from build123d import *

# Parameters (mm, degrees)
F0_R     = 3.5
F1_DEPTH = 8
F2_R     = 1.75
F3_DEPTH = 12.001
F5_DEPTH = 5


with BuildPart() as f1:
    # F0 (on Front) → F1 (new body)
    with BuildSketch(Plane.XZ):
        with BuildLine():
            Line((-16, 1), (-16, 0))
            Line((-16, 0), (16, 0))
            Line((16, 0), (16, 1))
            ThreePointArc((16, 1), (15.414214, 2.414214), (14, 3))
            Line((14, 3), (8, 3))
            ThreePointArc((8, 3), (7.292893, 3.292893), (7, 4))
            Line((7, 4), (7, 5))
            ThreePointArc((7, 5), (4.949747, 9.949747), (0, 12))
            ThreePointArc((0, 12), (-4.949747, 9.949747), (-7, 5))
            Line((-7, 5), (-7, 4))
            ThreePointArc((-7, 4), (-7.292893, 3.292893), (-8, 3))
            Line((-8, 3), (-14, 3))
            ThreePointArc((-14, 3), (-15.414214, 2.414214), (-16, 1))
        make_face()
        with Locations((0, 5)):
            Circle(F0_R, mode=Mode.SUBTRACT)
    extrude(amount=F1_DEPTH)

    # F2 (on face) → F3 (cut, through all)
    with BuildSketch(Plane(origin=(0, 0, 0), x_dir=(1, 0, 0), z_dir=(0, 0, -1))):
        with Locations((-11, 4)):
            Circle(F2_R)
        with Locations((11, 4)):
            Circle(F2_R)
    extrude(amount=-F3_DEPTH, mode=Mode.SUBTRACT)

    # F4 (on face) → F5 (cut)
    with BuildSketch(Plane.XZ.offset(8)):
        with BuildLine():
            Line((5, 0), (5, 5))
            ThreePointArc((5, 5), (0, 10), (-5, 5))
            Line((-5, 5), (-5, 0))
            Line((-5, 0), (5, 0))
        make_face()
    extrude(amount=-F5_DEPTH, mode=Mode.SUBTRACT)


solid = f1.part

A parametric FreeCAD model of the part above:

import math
import FreeCAD as App
import Part
import Sketcher

V = App.Vector

doc = App.newDocument("Part")
body = doc.addObject("PartDesign::Body", "Body")

sketch1 = doc.addObject("Sketcher::SketchObject", "Sketch")
body.addObject(sketch1)
sketch1.AttachmentSupport = (doc.XZ_Plane, [""])
sketch1.MapMode = "FlatFace"
sketch1.addGeometry([
    Part.LineSegment(V(-16, 1, 0), V(-16, 0, 0)),
    Part.LineSegment(V(-16, 0, 0), V(16, 0, 0)),
    Part.LineSegment(V(16, 0, 0), V(16, 1, 0)),
    Part.ArcOfCircle(Part.Circle(V(14.000001, 1.000001, 0), V(0, 0, 1), 1.999999), math.radians(-0.000043), math.radians(90.000043)),
    Part.LineSegment(V(14, 3, 0), V(8, 3, 0)),
    Part.ArcOfCircle(Part.Circle(V(7.999999, 3.999999, 0), V(0, 0, 1), 0.999999), math.radians(179.999957), math.radians(270.000043)),
    Part.LineSegment(V(7, 4, 0), V(7, 5, 0)),
    Part.ArcOfCircle(Part.Circle(V(-0.000002, 4.999998, 0), V(0, 0, 1), 7.000002), math.radians(0.000013), math.radians(89.999987)),
    Part.ArcOfCircle(Part.Circle(V(0.000002, 4.999998, 0), V(0, 0, 1), 7.000002), math.radians(90.000013), math.radians(179.999987)),
    Part.LineSegment(V(-7, 5, 0), V(-7, 4, 0)),
    Part.ArcOfCircle(Part.Circle(V(-7.999999, 3.999999, 0), V(0, 0, 1), 0.999999), math.radians(-90.000043), math.radians(0.000043)),
    Part.LineSegment(V(-8, 3, 0), V(-14, 3, 0)),
    Part.ArcOfCircle(Part.Circle(V(-14.000001, 1.000001, 0), V(0, 0, 1), 1.999999), math.radians(89.999957), math.radians(180.000043)),
    Part.Circle(V(0, 5, 0), V(0, 0, 1), 3.5),
], False)
sketch1.addConstraint([
    Sketcher.Constraint("Coincident", 0, 2, 1, 1),
    Sketcher.Constraint("Coincident", 1, 2, 2, 1),
    Sketcher.Constraint("Tangent", 2, 2, 3, 1),
    Sketcher.Constraint("Tangent", 3, 2, 4, 1),
    Sketcher.Constraint("Tangent", 4, 2, 5, 2),
    Sketcher.Constraint("Tangent", 5, 1, 6, 1),
    Sketcher.Constraint("Tangent", 6, 2, 7, 1),
    Sketcher.Constraint("Tangent", 7, 2, 8, 1),
    Sketcher.Constraint("Tangent", 8, 2, 9, 1),
    Sketcher.Constraint("Tangent", 9, 2, 10, 2),
    Sketcher.Constraint("Tangent", 10, 1, 11, 1),
    Sketcher.Constraint("Tangent", 11, 2, 12, 1),
    Sketcher.Constraint("Tangent", 12, 2, 0, 1),
    Sketcher.Constraint("Vertical", 0),
    Sketcher.Constraint("Horizontal", 1),
    Sketcher.Constraint("Vertical", 2),
    Sketcher.Constraint("Horizontal", 4),
    Sketcher.Constraint("Vertical", 6),
    Sketcher.Constraint("Vertical", 9),
    Sketcher.Constraint("Horizontal", 11),
    Sketcher.Constraint("Coincident", 13, 3, 7, 3),
    Sketcher.Constraint("Equal", 7, 8),
    Sketcher.Constraint("Equal", 5, 10),
    Sketcher.Constraint("Equal", 3, 12),
    Sketcher.Constraint("Symmetric", 0, 2, 1, 2, -1, 1),
    Sketcher.Constraint("Symmetric", 5, 3, 10, 3, -2),
    Sketcher.Constraint("PointOnObject", 7, 2, -2),
    Sketcher.Constraint("Equal", 2, 6),
    Sketcher.Constraint("Diameter", 13, 7.0),
    Sketcher.Constraint("Radius", 3, 1.999999),
    Sketcher.Constraint("Radius", 5, 0.999999),
    Sketcher.Constraint("Radius", 7, 7.000002),
    Sketcher.Constraint("DistanceX", 1, 1, 1, 2, 32.0),
    Sketcher.Constraint("DistanceY", 0, 2, 0, 1, 1.0),
])
pad1 = doc.addObject("PartDesign::Pad", "Pad")
body.addObject(pad1)
pad1.Profile = sketch1
pad1.Length = 8

sketch2 = doc.addObject("Sketcher::SketchObject", "Sketch001")
body.addObject(sketch2)
sketch2.AttachmentSupport = (doc.XY_Plane, [""])
sketch2.MapMode = "FlatFace"
sketch2.addGeometry([
    Part.Circle(V(-11, -4, 0), V(0, 0, 1), 1.75),
    Part.Circle(V(11, -4, 0), V(0, 0, 1), 1.75),
], False)
sketch2.addConstraint([
    Sketcher.Constraint("Equal", 0, 1),
    Sketcher.Constraint("Symmetric", 0, 3, 1, 3, -2),
    Sketcher.Constraint("Diameter", 0, 3.5),
    Sketcher.Constraint("DistanceX", 0, 3, -1, 1, 11.0),
    Sketcher.Constraint("DistanceY", 0, 3, -1, 1, 4.0),
])
pocket1 = doc.addObject("PartDesign::Pocket", "Pocket")
body.addObject(pocket1)
pocket1.Profile = sketch2
pocket1.Type = "ThroughAll"
pocket1.Reversed = True

sketch3 = doc.addObject("Sketcher::SketchObject", "Sketch002")
body.addObject(sketch3)
sketch3.AttachmentSupport = (doc.XZ_Plane, [""])
sketch3.MapMode = "FlatFace"
sketch3.AttachmentOffset = App.Placement(V(0, 0, 8), App.Rotation())
sketch3.addGeometry([
    Part.LineSegment(V(5, 0, 0), V(5, 5, 0)),
    Part.ArcOfCircle(Part.Circle(V(0, 5, 0), V(0, 0, 1), 5), math.radians(0), math.radians(180)),
    Part.LineSegment(V(-5, 5, 0), V(-5, 0, 0)),
    Part.LineSegment(V(-5, 0, 0), V(5, 0, 0)),
], False)
sketch3.addConstraint([
    Sketcher.Constraint("Tangent", 0, 2, 1, 1),
    Sketcher.Constraint("Tangent", 1, 2, 2, 1),
    Sketcher.Constraint("Coincident", 2, 2, 3, 1),
    Sketcher.Constraint("Coincident", 3, 2, 0, 1),
    Sketcher.Constraint("Vertical", 0),
    Sketcher.Constraint("Vertical", 2),
    Sketcher.Constraint("Horizontal", 3),
    Sketcher.Constraint("Symmetric", 2, 2, 3, 2, -1, 1),
    Sketcher.Constraint("Radius", 1, 5.0),
    Sketcher.Constraint("DistanceY", 0, 1, 0, 2, 5.0),
])
pocket2 = doc.addObject("PartDesign::Pocket", "Pocket001")
body.addObject(pocket2)
pocket2.Profile = sketch3
pocket2.Length = 5

doc.recompute()
